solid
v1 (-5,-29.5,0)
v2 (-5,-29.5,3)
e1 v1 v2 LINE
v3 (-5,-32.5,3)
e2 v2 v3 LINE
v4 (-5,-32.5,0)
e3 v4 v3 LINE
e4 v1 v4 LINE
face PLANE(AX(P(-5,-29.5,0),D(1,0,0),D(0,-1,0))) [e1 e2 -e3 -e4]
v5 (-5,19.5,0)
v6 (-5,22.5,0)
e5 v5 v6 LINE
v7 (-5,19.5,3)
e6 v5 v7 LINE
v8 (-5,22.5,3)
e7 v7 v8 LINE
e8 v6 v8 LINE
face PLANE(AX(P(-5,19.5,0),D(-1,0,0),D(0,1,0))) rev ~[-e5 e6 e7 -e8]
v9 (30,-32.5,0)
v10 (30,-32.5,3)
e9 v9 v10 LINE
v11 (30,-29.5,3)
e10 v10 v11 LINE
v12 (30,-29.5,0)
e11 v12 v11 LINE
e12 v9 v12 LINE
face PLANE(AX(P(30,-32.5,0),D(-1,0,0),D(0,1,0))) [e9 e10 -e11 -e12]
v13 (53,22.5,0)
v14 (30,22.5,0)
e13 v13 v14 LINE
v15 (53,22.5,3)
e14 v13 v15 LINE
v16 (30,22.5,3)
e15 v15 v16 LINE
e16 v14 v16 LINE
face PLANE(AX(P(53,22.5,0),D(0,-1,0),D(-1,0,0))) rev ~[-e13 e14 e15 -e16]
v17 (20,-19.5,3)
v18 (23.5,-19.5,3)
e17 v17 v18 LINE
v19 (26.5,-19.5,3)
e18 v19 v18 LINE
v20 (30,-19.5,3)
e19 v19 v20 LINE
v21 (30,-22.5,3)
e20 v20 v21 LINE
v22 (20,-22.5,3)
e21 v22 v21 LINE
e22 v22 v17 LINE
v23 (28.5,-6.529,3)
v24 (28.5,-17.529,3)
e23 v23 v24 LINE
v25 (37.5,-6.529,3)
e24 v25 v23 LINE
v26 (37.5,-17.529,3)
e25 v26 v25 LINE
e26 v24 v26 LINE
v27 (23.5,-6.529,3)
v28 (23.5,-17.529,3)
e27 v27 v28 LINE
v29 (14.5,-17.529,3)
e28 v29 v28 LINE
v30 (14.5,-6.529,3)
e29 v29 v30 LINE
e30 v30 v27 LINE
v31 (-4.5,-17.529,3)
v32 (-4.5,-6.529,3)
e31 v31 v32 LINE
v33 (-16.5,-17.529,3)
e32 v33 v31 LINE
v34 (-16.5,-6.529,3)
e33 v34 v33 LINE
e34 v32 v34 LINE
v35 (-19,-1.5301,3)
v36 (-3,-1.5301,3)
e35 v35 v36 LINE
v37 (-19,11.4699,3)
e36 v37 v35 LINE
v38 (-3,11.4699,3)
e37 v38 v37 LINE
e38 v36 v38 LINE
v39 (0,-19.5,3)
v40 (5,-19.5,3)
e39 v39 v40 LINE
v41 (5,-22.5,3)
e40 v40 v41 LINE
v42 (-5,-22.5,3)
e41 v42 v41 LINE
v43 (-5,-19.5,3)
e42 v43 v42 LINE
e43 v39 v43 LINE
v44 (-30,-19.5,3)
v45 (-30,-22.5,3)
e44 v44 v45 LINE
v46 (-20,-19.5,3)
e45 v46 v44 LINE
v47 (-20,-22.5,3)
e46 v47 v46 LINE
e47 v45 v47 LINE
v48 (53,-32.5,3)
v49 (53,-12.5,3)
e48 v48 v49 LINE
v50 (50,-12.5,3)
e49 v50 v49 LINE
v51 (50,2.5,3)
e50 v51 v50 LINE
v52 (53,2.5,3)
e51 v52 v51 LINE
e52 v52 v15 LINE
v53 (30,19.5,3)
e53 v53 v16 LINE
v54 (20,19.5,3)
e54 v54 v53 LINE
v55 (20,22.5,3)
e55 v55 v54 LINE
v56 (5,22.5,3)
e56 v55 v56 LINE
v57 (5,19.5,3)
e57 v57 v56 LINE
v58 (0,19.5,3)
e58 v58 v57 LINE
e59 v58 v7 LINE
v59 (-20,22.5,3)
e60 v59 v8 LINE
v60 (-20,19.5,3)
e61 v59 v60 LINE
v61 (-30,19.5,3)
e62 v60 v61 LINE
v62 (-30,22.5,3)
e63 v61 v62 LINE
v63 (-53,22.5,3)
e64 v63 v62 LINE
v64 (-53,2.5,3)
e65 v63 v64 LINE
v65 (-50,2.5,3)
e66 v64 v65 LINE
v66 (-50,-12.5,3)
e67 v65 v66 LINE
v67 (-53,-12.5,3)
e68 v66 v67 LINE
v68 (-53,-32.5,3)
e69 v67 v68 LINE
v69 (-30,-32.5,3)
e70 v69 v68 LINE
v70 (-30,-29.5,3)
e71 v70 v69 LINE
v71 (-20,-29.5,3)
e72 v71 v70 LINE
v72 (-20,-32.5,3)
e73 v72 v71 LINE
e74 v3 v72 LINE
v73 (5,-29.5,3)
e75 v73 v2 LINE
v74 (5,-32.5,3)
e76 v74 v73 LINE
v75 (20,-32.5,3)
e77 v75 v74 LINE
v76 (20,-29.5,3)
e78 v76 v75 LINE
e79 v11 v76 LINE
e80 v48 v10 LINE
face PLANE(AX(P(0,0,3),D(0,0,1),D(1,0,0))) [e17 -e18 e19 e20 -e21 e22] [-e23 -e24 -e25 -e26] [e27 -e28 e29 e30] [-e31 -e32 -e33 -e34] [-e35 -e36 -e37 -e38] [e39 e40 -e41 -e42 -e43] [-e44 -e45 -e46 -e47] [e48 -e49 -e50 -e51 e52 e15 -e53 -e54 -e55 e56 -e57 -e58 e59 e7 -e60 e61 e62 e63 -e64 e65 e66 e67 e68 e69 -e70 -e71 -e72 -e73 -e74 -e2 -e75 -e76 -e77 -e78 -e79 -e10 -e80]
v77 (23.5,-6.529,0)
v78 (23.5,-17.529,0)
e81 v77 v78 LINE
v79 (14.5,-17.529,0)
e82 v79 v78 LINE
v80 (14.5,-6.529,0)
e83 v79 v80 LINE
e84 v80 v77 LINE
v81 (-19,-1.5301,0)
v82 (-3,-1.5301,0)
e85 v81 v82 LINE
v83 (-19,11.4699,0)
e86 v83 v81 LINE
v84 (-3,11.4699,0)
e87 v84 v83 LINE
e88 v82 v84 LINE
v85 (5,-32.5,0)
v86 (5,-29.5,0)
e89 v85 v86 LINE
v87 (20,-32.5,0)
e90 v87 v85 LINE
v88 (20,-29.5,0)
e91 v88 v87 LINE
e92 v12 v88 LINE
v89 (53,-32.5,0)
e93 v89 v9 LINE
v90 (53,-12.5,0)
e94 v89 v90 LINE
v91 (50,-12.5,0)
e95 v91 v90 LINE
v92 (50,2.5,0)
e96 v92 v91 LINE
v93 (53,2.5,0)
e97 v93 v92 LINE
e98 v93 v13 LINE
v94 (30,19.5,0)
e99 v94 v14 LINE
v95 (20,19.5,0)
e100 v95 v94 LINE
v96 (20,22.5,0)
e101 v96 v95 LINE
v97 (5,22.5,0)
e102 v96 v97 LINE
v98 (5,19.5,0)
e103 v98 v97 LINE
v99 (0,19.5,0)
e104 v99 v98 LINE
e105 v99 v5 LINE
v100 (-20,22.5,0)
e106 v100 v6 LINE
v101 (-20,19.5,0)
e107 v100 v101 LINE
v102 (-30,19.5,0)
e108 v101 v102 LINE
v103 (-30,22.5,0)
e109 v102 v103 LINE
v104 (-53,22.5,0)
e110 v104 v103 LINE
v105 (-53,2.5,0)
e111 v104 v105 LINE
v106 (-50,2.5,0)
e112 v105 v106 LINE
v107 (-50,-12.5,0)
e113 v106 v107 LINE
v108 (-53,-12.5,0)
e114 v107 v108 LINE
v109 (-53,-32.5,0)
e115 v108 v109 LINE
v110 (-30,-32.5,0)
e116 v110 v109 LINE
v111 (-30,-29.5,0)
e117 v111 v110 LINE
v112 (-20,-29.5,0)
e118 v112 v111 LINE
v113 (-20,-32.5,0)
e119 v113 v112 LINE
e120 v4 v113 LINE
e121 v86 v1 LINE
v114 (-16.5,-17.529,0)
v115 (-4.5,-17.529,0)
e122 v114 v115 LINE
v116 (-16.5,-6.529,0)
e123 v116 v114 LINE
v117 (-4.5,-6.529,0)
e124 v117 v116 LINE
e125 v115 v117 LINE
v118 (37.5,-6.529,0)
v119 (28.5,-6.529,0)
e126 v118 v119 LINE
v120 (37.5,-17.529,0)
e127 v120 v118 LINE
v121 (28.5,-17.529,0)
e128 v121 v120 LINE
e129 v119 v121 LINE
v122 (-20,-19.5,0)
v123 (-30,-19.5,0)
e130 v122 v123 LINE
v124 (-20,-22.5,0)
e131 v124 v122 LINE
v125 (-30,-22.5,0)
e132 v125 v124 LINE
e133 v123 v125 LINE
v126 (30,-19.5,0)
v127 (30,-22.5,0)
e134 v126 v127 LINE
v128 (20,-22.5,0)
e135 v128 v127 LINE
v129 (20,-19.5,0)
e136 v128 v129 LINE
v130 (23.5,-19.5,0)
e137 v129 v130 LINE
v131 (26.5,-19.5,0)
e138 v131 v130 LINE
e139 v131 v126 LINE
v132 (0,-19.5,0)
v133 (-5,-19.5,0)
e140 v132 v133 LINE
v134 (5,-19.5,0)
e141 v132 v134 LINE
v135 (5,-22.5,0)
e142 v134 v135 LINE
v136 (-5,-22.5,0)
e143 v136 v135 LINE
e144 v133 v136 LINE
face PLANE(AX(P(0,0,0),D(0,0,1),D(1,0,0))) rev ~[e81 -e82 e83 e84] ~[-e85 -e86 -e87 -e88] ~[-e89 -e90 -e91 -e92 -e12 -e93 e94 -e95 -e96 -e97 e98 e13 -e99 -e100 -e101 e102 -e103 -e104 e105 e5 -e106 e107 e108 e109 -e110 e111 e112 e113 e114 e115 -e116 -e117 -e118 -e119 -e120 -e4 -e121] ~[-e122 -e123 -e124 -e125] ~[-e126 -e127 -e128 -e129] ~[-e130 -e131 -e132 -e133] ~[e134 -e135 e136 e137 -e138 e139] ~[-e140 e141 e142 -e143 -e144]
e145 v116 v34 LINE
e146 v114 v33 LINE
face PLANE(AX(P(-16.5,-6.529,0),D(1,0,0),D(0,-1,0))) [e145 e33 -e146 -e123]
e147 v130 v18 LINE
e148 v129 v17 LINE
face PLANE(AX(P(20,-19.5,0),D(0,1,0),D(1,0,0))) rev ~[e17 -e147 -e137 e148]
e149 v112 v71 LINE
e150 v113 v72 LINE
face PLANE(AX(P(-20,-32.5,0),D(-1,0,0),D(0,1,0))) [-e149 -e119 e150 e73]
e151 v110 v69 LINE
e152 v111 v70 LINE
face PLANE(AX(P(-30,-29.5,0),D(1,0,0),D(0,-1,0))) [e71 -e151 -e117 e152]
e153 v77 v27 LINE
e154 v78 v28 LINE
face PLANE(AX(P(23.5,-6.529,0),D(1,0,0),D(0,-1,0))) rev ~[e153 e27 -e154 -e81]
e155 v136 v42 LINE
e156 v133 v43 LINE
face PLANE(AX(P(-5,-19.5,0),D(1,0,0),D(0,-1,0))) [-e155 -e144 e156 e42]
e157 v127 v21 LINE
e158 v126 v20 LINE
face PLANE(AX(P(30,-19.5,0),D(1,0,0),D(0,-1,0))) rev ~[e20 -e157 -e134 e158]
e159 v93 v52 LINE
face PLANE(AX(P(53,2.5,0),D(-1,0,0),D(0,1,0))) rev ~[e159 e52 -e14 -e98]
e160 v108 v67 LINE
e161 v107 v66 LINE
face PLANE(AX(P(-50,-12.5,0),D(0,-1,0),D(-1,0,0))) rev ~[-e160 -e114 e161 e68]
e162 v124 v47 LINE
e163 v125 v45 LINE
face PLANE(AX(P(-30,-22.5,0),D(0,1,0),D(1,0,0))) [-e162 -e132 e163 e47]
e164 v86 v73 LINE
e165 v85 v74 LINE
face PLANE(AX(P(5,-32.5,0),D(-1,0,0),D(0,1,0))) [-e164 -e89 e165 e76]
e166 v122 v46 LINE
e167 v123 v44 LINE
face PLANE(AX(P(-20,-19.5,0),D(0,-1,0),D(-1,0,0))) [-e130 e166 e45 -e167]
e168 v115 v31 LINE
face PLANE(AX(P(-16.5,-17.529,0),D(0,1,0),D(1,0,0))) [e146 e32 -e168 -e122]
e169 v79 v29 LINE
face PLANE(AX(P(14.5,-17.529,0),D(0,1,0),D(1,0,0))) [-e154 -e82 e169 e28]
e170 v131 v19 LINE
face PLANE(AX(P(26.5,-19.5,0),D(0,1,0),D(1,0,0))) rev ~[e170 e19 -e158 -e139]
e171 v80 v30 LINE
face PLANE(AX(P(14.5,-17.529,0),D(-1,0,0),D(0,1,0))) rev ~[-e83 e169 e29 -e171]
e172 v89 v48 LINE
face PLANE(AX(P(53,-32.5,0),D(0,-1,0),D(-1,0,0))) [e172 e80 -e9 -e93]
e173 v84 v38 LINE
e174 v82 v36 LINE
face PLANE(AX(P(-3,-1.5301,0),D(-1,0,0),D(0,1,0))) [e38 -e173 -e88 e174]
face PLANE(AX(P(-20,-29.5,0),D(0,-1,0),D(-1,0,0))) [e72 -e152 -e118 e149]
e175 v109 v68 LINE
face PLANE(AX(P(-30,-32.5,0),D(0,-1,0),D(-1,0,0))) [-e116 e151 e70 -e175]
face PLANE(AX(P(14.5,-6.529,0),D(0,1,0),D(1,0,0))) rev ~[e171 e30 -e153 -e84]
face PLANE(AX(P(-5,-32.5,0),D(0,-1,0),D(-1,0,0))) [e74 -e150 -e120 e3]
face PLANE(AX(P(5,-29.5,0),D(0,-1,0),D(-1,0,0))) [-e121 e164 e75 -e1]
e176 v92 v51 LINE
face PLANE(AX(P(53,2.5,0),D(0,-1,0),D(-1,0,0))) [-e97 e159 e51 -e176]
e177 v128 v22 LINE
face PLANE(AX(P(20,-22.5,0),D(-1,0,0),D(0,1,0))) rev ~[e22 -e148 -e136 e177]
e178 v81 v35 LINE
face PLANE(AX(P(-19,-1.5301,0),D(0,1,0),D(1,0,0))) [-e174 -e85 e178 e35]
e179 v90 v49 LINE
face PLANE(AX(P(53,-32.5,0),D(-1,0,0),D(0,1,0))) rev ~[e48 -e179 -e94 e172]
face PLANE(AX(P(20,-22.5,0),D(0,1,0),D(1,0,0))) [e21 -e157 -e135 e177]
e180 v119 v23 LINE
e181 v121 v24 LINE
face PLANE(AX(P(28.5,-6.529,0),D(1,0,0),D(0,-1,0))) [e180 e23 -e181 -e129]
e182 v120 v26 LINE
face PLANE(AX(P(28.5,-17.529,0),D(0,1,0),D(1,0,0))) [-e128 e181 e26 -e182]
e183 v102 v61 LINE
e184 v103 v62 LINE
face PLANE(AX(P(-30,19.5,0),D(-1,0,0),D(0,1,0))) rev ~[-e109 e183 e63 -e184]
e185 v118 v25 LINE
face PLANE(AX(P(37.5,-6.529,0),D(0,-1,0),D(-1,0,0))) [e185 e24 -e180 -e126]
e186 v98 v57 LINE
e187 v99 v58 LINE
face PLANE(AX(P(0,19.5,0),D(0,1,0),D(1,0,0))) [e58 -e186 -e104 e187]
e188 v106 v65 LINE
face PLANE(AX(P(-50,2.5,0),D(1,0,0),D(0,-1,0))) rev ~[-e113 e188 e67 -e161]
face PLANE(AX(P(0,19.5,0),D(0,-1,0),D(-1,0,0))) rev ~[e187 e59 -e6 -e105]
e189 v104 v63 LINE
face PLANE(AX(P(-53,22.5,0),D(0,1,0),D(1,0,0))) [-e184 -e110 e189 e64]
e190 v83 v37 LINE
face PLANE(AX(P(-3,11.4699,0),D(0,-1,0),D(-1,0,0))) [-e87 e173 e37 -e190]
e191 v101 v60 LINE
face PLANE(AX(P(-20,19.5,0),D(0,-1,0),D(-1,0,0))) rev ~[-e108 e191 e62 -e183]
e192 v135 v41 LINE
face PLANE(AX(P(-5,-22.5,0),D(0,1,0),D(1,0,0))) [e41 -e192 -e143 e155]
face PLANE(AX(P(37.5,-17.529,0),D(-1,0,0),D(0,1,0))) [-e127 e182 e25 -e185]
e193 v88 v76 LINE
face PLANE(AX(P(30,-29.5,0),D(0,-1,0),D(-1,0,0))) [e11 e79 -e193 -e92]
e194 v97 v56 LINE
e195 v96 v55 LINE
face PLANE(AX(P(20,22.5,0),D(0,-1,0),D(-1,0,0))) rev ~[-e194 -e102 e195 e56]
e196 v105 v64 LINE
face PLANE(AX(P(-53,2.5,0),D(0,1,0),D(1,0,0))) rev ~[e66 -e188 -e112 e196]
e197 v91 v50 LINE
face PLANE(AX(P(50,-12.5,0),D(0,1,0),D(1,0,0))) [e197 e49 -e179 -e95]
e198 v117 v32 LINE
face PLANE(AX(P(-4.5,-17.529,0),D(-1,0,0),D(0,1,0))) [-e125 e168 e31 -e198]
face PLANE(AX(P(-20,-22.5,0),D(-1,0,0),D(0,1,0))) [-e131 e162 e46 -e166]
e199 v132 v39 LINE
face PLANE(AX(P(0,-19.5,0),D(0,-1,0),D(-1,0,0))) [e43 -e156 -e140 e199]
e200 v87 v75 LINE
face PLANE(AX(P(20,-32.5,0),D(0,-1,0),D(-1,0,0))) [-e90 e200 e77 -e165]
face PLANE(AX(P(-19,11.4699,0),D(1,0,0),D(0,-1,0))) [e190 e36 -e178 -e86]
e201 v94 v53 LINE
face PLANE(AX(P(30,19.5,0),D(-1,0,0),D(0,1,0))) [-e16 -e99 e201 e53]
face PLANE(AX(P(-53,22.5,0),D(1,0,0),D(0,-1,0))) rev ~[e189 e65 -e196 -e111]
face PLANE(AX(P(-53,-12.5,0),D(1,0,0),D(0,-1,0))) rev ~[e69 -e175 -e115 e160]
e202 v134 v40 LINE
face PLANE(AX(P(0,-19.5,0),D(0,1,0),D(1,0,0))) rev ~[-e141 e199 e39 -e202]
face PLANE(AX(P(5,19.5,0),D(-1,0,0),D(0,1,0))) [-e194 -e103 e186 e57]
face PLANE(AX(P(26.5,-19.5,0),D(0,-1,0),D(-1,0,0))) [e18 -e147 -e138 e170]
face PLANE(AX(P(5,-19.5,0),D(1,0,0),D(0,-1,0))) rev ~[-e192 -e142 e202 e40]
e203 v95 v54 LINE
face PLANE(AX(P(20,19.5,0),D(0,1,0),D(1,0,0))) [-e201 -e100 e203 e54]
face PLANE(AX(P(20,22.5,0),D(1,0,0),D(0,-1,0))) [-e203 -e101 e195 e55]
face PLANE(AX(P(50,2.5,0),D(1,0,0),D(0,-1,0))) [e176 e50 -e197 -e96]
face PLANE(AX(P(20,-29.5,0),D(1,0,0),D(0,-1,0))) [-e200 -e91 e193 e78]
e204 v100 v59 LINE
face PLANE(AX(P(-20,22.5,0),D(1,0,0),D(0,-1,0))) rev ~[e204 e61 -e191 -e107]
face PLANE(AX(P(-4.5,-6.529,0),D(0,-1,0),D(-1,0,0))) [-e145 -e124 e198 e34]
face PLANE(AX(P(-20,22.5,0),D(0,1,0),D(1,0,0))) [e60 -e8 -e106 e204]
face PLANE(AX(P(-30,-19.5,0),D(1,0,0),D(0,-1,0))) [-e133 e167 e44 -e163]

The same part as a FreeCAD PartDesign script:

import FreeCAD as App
import Part
import Sketcher

V = App.Vector


def add_polygon(sketch, points):
    """Adds a closed chain of lines whose ends are joined by coincident constraints."""
    first, n = sketch.GeometryCount, len(points)
    for a, b in zip(points, points[1:] + points[:1]):
        sketch.addGeometry(Part.LineSegment(App.Vector(*a, 0), App.Vector(*b, 0)), False)
    for i in range(n):
        sketch.addConstraint(Sketcher.Constraint("Coincident", first + i, 2, first + (i + 1) % n, 1))

doc = App.newDocument("Part")
body = doc.addObject("PartDesign::Body", "Body")

# Sketch on XY plane
sketch1 = body.newObject("Sketcher::SketchObject", "Sketch")
sketch1.AttachmentSupport = (doc.getObject("XY_Plane"), [""])
sketch1.MapMode = "FlatFace"
add_polygon(sketch1, [(-30, 22.5), (-53, 22.5), (-53, 2.5), (-50, 2.5), (-50, -12.5), (-53, -12.5), (-53, -32.5), (-30, -32.5), (-30, -29.5), (-20, -29.5), (-20, -32.5), (-5, -32.5), (-5, -29.5), (5, -29.5), (5, -32.5), (20, -32.5), (20, -29.5), (30, -29.5), (30, -32.5), (53, -32.5), (53, -12.5), (50, -12.5), (50, 2.5), (53, 2.5), (53, 22.5), (30, 22.5), (30, 19.5), (20, 19.5), (20, 22.5), (5, 22.5), (5, 19.5), (-5, 19.5), (-5, 22.5), (-20, 22.5), (-20, 19.5), (-30, 19.5)])  # lines 0-35
add_polygon(sketch1, [(-20, -19.5), (-20, -22.5), (-30, -22.5), (-30, -19.5)])  # lines 36-39
add_polygon(sketch1, [(-4.5, -6.5), (-4.5, -17.5), (-16.5, -17.5), (-16.5, -6.5)])  # lines 40-43
add_polygon(sketch1, [(-5, -19.5), (5, -19.5), (5, -22.5), (-5, -22.5)])  # lines 44-47
add_polygon(sketch1, [(30, -22.5), (20, -22.5), (20, -19.5), (30, -19.5)])  # lines 48-51
add_polygon(sketch1, [(23.5, -17.5), (14.5, -17.5), (14.5, -6.5), (23.5, -6.5)])  # lines 52-55
add_polygon(sketch1, [(37.5, -17.5), (28.5, -17.5), (28.5, -6.5), (37.5, -6.5)])  # lines 56-59
add_polygon(sketch1, [(-3, -1.5), (-19, -1.5), (-19, 11.5), (-3, 11.5)])  # lines 60-63
sketch1.addConstraint([
    Sketcher.Constraint("Horizontal", 0),
    Sketcher.Constraint("Vertical", 1),
    Sketcher.Constraint("Horizontal", 2),
    Sketcher.Constraint("Vertical", 3),
    Sketcher.Constraint("Horizontal", 4),
    Sketcher.Constraint("Vertical", 5),
    Sketcher.Constraint("Horizontal", 6),
    Sketcher.Constraint("Vertical", 7),
    Sketcher.Constraint("Horizontal", 8),
    Sketcher.Constraint("Vertical", 9),
    Sketcher.Constraint("Horizontal", 10),
    Sketcher.Constraint("Vertical", 11),
    Sketcher.Constraint("Horizontal", 12),
    Sketcher.Constraint("Vertical", 13),
    Sketcher.Constraint("Horizontal", 14),
    Sketcher.Constraint("Vertical", 15),
    Sketcher.Constraint("Horizontal", 16),
    Sketcher.Constraint("Vertical", 17),
    Sketcher.Constraint("Horizontal", 18),
    Sketcher.Constraint("Vertical", 19),
    Sketcher.Constraint("Horizontal", 20),
    Sketcher.Constraint("Vertical", 21),
    Sketcher.Constraint("Horizontal", 22),
    Sketcher.Constraint("Vertical", 23),
    Sketcher.Constraint("Horizontal", 24),
    Sketcher.Constraint("Vertical", 25),
    Sketcher.Constraint("Horizontal", 26),
    Sketcher.Constraint("Vertical", 27),
    Sketcher.Constraint("Horizontal", 28),
    Sketcher.Constraint("Vertical", 29),
    Sketcher.Constraint("Horizontal", 30),
    Sketcher.Constraint("Vertical", 31),
    Sketcher.Constraint("Horizontal", 32),
    Sketcher.Constraint("Vertical", 33),
    Sketcher.Constraint("Horizontal", 34),
    Sketcher.Constraint("Vertical", 35),
    Sketcher.Constraint("Vertical", 36),
    Sketcher.Constraint("Horizontal", 37),
    Sketcher.Constraint("Vertical", 38),
    Sketcher.Constraint("Horizontal", 39),
    Sketcher.Constraint("Vertical", 40),
    Sketcher.Constraint("Horizontal", 41),
    Sketcher.Constraint("Vertical", 42),
    Sketcher.Constraint("Horizontal", 43),
    Sketcher.Constraint("Horizontal", 44),
    Sketcher.Constraint("Vertical", 45),
    Sketcher.Constraint("Horizontal", 46),
    Sketcher.Constraint("Vertical", 47),
    Sketcher.Constraint("Horizontal", 48),
    Sketcher.Constraint("Vertical", 49),
    Sketcher.Constraint("Horizontal", 50),
    Sketcher.Constraint("Vertical", 51),
    Sketcher.Constraint("Horizontal", 52),
    Sketcher.Constraint("Vertical", 53),
    Sketcher.Constraint("Horizontal", 54),
    Sketcher.Constraint("Vertical", 55),
    Sketcher.Constraint("Horizontal", 56),
    Sketcher.Constraint("Vertical", 57),
    Sketcher.Constraint("Horizontal", 58),
    Sketcher.Constraint("Vertical", 59),
    Sketcher.Constraint("Horizontal", 60),
    Sketcher.Constraint("Vertical", 61),
    Sketcher.Constraint("Horizontal", 62),
    Sketcher.Constraint("Vertical", 63),
    Sketcher.Constraint("Symmetric", 27, 2, 36, 2, -1, 1),
    Sketcher.Constraint("Symmetric", 24, 2, 37, 2, -1, 1),
    Sketcher.Constraint("Symmetric", 30, 2, 44, 2, -1, 1),
    Sketcher.Constraint("Symmetric", 28, 2, 46, 2, -1, 1),
    Sketcher.Constraint("Symmetric", 32, 2, 48, 2, -1, 1),
    Sketcher.Constraint("Symmetric", 34, 2, 50, 2, -1, 1),
    Sketcher.Constraint("Symmetric", 10, 2, 13, 2, -2),
    Sketcher.Constraint("Symmetric", 8, 2, 15, 2, -2),
    Sketcher.Constraint("Symmetric", 6, 2, 17, 2, -2),
    Sketcher.Constraint("Symmetric", 4, 2, 19, 2, -2),
    Sketcher.Constraint("Symmetric", 2, 2, 21, 2, -2),
    Sketcher.Constraint("Symmetric", 0, 2, 23, 2, -2),
    Sketcher.Constraint("Symmetric", 28, 2, 31, 2, -2),
    Sketcher.Constraint("Symmetric", 26, 2, 33, 2, -2),
    Sketcher.Constraint("Symmetric", 38, 2, 50, 2, -2),
    Sketcher.Constraint("Horizontal", 6, 2, 9, 2),
    Sketcher.Constraint("Horizontal", 8, 2, 11, 2),
    Sketcher.Constraint("Horizontal", 26, 2, 29, 2),
    Sketcher.Constraint("Horizontal", 41, 2, 52, 2),
    Sketcher.Constraint("Horizontal", 43, 2, 53, 2),
    Sketcher.Constraint("Horizontal", 55, 2, 56, 2),
    Sketcher.Constraint("Horizontal", 54, 2, 57, 2),
    Sketcher.Constraint("Vertical", 1, 2, 4, 2),
    Sketcher.Constraint("Vertical", 17, 2, 24, 2),
    Sketcher.Constraint("Vertical", 15, 2, 26, 2),
    Sketcher.Constraint("Vertical", 13, 2, 28, 2),
    Sketcher.Constraint("Equal", 8, 12),
    Sketcher.Constraint("Equal", 54, 56),
    Sketcher.Constraint("Equal", 32, 3),
    Sketcher.Constraint("Equal", 1, 5),
    Sketcher.Constraint("Equal", 22, 7),
    Sketcher.Constraint("Equal", 17, 25),
    Sketcher.Constraint("DistanceX", 0, 2, 0, 1, 23.0),
    Sketcher.Constraint("DistanceX", 2, 1, 2, 2, 3.0),
    Sketcher.Constraint("DistanceX", 8, 1, 8, 2, 10.0),
    Sketcher.Constraint("DistanceX", 10, 1, 10, 2, 15.0),
    Sketcher.Constraint("DistanceX", 41, 2, 41, 1, 12.0),
    Sketcher.Constraint("DistanceX", 52, 2, 52, 1, 9.0),
    Sketcher.Constraint("DistanceX", 60, 2, 60, 1, 16.0),
    Sketcher.Constraint("DistanceY", 1, 2, 1, 1, 20.0),
    Sketcher.Constraint("DistanceY", 40, 2, 40, 1, 11.0),
    Sketcher.Constraint("DistanceY", 61, 1, 61, 2, 13.0),
    Sketcher.Constraint("DistanceX", 60, 2, -1, 1, 19.0),
    Sketcher.Constraint("DistanceY", -1, 1, 0, 2, 22.5),
    Sketcher.Constraint("DistanceX", 40, 2, -1, 1, 4.5),
    Sketcher.Constraint("DistanceX", -1, 1, 52, 2, 14.5),
    Sketcher.Constraint("DistanceX", -1, 1, 56, 2, 28.5),
    Sketcher.Constraint("DistanceY", 60, 2, -1, 1, 1.53),
    Sketcher.Constraint("DistanceY", 40, 2, -1, 1, 17.529),
])
pad1 = body.newObject("PartDesign::Pad", "Pad")
pad1.Profile = sketch1
pad1.Length = 3

doc.recompute()
